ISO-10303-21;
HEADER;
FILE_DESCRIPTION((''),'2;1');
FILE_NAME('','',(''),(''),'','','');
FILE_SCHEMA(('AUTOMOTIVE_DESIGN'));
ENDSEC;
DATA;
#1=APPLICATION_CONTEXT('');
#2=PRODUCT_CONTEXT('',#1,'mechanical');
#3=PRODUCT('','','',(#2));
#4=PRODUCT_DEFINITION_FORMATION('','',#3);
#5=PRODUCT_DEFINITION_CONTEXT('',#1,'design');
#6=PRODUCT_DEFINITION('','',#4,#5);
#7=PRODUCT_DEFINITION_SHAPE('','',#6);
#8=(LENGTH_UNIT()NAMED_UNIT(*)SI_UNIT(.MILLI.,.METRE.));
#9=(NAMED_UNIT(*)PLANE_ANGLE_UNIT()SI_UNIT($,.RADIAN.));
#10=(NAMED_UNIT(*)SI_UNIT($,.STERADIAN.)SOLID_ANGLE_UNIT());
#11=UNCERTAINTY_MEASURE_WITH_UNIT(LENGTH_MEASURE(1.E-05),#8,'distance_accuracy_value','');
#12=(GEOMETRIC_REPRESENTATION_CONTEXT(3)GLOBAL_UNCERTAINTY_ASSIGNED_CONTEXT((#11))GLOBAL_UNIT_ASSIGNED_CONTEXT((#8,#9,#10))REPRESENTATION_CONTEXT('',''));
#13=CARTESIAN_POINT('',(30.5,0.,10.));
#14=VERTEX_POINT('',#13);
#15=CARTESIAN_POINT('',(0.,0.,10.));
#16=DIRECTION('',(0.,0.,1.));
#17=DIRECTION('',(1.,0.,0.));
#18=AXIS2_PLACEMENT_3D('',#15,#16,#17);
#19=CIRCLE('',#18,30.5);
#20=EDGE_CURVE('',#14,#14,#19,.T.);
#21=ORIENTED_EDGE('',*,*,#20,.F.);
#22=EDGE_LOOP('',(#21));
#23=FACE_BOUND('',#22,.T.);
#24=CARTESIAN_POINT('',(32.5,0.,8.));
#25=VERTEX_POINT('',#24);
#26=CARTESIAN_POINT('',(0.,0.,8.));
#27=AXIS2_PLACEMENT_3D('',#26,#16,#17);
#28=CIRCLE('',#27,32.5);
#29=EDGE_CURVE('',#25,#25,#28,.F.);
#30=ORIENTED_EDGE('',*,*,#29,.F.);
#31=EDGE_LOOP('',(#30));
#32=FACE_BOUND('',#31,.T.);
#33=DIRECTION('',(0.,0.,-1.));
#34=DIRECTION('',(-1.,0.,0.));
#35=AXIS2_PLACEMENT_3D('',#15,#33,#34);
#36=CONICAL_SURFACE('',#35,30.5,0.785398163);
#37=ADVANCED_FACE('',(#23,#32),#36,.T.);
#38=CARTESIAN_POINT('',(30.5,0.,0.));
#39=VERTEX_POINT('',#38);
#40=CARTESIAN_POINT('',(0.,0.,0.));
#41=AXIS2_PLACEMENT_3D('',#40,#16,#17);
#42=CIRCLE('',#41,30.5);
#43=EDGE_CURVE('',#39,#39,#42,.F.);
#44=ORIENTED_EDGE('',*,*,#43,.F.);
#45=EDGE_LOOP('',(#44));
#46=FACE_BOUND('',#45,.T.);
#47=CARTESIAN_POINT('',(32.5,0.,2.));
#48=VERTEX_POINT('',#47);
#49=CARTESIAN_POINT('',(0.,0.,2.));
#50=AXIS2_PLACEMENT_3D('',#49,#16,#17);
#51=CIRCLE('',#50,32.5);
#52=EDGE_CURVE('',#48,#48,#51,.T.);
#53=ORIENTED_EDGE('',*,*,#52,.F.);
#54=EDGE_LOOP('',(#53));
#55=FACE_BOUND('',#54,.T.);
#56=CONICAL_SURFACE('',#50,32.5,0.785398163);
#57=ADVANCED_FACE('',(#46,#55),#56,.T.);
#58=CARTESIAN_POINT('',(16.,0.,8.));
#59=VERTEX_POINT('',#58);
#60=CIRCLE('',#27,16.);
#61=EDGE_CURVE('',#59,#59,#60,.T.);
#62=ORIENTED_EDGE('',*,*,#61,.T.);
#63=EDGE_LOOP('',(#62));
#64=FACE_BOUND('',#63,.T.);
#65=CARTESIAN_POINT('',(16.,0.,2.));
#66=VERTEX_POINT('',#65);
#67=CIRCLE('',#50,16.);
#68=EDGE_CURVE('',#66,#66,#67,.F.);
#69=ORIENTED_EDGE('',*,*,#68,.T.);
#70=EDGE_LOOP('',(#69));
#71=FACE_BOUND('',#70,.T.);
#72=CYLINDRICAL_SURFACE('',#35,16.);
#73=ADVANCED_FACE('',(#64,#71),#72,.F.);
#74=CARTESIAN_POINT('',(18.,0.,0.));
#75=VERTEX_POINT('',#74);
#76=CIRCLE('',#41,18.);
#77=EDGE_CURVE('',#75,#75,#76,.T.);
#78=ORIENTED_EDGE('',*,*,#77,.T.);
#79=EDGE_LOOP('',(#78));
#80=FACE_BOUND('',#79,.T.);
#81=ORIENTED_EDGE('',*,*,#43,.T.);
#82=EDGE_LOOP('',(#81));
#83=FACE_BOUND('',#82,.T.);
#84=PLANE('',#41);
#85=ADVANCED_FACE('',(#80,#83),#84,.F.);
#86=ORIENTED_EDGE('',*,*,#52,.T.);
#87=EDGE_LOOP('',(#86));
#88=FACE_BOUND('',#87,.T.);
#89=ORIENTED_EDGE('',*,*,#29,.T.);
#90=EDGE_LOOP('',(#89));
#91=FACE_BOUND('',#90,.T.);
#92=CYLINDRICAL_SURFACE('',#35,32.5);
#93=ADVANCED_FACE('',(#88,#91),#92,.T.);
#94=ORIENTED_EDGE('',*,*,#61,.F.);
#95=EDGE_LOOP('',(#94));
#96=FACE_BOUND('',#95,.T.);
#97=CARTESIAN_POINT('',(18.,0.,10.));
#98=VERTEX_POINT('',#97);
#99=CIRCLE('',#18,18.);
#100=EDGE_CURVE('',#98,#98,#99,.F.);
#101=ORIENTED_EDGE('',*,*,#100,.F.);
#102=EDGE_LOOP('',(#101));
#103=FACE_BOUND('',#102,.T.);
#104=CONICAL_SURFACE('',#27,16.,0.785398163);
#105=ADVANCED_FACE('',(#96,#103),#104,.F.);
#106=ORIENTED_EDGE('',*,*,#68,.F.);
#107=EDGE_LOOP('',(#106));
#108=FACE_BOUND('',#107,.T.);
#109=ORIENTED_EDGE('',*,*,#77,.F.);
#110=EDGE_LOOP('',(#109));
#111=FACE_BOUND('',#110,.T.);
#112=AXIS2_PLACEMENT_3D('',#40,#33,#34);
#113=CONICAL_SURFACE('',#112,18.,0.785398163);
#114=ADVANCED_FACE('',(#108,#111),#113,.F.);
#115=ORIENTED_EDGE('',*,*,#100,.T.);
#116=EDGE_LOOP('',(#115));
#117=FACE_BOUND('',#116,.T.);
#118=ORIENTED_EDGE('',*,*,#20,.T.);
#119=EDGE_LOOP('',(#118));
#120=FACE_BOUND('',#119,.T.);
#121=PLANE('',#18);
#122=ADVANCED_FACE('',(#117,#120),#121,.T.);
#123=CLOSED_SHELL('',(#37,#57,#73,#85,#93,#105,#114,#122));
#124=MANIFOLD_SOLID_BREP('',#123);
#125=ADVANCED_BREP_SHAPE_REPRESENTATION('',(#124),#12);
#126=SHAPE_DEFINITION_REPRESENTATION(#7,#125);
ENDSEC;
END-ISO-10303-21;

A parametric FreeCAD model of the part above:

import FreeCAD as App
import Part
import Sketcher
Q = App.Units.Quantity


def edges_at(feature, points):
    """Names of the edges that pass closest to the given points."""
    edges = feature.Shape.Edges
    near = lambda p: min(range(len(edges)), key=lambda i: edges[i].distToShape(Part.Vertex(*p))[0])
    return sorted({f"Edge{near(p) + 1}" for p in points})

doc = App.newDocument("Part")
body = doc.addObject("PartDesign::Body", "Body")

sketch1 = body.newObject("Sketcher::SketchObject", "Sketch")
sketch1.AttachmentSupport = (doc.getObject("XY_Plane"), [""])
sketch1.MapMode = "FlatFace"
sketch1.addGeometry([
    Part.Circle(App.Vector(0, 0, 0), App.Vector(0, 0, 1), 32),
    Part.Circle(App.Vector(0, 0, 0), App.Vector(0, 0, 1), 16),
], False)
sketch1.addConstraint([
    Sketcher.Constraint("Coincident", 0, 3, -1, 1),
    Sketcher.Constraint("Coincident", 1, 3, -1, 1),
    Sketcher.Constraint("Diameter", 0, Q("65 mm")),
    Sketcher.Constraint("Diameter", 1, Q("32 mm")),
])
pad1 = body.newObject("PartDesign::Pad", "Pad")
pad1.Profile = sketch1
pad1.Length = 10
doc.recompute()

chamfer = body.newObject("PartDesign::Chamfer", "Chamfer")
chamfer.Base = (pad1, edges_at(pad1, [
    (-32.5, 0, 0),
    (-32.5, 0, 10),
    (-16, 0, 0),
    (-16, 0, 10),
]))
chamfer.Size = 2

doc.recompute()
